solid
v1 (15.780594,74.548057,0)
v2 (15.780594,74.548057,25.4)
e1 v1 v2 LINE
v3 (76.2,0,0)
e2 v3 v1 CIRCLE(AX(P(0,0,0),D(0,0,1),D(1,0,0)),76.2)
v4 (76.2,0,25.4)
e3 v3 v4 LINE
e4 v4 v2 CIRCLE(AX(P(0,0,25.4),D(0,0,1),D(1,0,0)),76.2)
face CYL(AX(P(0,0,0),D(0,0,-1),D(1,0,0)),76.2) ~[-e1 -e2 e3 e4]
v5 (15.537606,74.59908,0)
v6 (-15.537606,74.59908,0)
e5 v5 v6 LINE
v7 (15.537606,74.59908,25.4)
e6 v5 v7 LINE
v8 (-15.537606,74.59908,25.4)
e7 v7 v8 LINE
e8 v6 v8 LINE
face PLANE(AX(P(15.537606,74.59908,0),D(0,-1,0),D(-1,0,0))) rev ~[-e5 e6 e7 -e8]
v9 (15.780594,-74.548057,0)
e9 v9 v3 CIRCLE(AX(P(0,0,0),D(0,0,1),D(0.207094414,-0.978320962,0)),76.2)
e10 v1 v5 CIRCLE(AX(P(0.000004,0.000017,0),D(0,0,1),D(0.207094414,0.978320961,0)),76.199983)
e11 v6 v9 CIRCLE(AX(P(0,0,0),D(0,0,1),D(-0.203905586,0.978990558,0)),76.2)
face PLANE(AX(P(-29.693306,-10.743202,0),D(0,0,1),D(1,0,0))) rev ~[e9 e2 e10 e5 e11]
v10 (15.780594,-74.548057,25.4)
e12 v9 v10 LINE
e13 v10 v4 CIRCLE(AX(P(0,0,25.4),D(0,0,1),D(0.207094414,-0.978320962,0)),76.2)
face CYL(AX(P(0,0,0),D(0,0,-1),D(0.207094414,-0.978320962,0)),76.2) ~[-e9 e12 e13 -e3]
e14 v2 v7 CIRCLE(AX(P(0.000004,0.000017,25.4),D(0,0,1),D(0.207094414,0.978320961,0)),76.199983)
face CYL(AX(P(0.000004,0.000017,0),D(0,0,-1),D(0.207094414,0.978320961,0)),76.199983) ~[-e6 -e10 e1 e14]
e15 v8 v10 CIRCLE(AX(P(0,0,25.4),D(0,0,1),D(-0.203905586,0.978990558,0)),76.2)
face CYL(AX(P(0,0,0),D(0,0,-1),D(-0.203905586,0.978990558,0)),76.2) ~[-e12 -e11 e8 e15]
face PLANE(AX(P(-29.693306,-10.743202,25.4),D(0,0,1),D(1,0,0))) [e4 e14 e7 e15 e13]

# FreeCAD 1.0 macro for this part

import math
import FreeCAD as App
import Part
import Sketcher
from FreeCAD import Vector
Q = App.Units.Quantity

doc = App.newDocument("Part")
body = doc.addObject("PartDesign::Body", "Body")

# Sketch on XY plane
sketch1 = body.newObject("Sketcher::SketchObject", "Sketch")
sketch1.AttachmentSupport = (doc.getObject("XY_Plane"), [""])
sketch1.MapMode = "FlatFace"
sketch1.addGeometry([
    Part.ArcOfCircle(Part.Circle(Vector(0, 0, 0), Vector(0, 0, 1), 76.2), math.radians(102), math.radians(282)),  # 0
    Part.ArcOfCircle(Part.Circle(Vector(0, 0, 0), Vector(0, 0, 1), 76.2), math.radians(-78), math.radians(0)),  # 1
    Part.ArcOfCircle(Part.Circle(Vector(0, 0, 0), Vector(0, 0, 1), 76.2), math.radians(0), math.radians(78)),  # 2
    Part.ArcOfCircle(Part.Circle(Vector(0, 0, 0), Vector(0, 0, 1), 76.2), math.radians(78.05), math.radians(78.23)),  # 3
    Part.LineSegment(Vector(15.54, 74.6, 0), Vector(-15.54, 74.6, 0)),  # 4
], False)
sketch1.addConstraint([
    Sketcher.Constraint("Tangent", 0, 2, 1, 1),
    Sketcher.Constraint("Tangent", 1, 2, 2, 1),
    Sketcher.Constraint("Tangent", 2, 2, 3, 1),
    Sketcher.Constraint("Coincident", 3, 2, 4, 1),
    Sketcher.Constraint("Coincident", 4, 2, 0, 1),
    Sketcher.Constraint("Horizontal", 4),
    Sketcher.Constraint("Coincident", 0, 3, -1, 1),
    Sketcher.Constraint("Coincident", 2, 3, -1, 1),
    Sketcher.Constraint("PointOnObject", 1, 2, -1),
    Sketcher.Constraint("Vertical", 0, 2, 2, 2),
    Sketcher.Constraint("Radius", 0, Q("3 in")),
    Sketcher.Constraint("DistanceX", 3, 3, 1, 2, Q("2.9999999 in")),
    Sketcher.Constraint("DistanceX", 4, 2, 2, 2, Q("1.233 in")),
    Sketcher.Constraint("DistanceX", 4, 2, 4, 1, Q("31.075211 mm")),
])
pad1 = body.newObject("PartDesign::Pad", "Pad")
pad1.Profile = sketch1
pad1.Length = Q("1 in")

doc.recompute()
